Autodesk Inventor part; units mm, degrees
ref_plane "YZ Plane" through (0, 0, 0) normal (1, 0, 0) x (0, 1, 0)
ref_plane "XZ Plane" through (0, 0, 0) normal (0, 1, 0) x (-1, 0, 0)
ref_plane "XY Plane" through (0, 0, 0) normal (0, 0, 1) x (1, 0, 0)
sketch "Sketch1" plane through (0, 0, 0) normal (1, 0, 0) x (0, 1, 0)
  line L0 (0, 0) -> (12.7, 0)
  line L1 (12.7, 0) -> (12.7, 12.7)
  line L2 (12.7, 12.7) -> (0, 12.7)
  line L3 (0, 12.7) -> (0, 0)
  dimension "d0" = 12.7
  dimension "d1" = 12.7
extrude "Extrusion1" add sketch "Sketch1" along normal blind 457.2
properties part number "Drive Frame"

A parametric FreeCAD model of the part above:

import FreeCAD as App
import Part
import Sketcher
Q = App.Units.Quantity


def add_polygon(sketch, points):
    """Adds a closed chain of lines whose ends are joined by coincident constraints."""
    first, n = sketch.GeometryCount, len(points)
    for a, b in zip(points, points[1:] + points[:1]):
        sketch.addGeometry(Part.LineSegment(App.Vector(*a, 0), App.Vector(*b, 0)), False)
    for i in range(n):
        sketch.addConstraint(Sketcher.Constraint("Coincident", first + i, 2, first + (i + 1) % n, 1))

doc = App.newDocument("Part")
params = doc.addObject("Spreadsheet::Sheet", "Params")
for row, (alias, value) in enumerate([
    ("sketch1_width", "0.5 in"),
    ("pad1_length", "18 in"),
], start=1):
    params.set(f"A{row}", alias)
    params.set(f"B{row}", "=" + value)
    params.setAlias(f"B{row}", alias)

body = doc.addObject("PartDesign::Body", "Body")

sketch1 = body.newObject("Sketcher::SketchObject", "Sketch")
sketch1.AttachmentSupport = (doc.getObject("YZ_Plane"), [""])
sketch1.MapMode = "FlatFace"
add_polygon(sketch1, [(0, 13), (0, 0), (13, 0), (13, 13)])
sketch1.addConstraint([
    Sketcher.Constraint("Vertical", 0),
    Sketcher.Constraint("Horizontal", 1),
    Sketcher.Constraint("Vertical", 2),
    Sketcher.Constraint("Horizontal", 3),
    Sketcher.Constraint("Coincident", 0, 2, -1, 1),
    Sketcher.Constraint("Equal", 3, 0),
    Sketcher.Constraint("DistanceX", 1, 1, 1, 2, Q("0.5 in")),
])
sketch1.setExpression("Constraints[10]", "Params.sketch1_width")
pad1 = body.newObject("PartDesign::Pad", "Pad")
pad1.Profile = sketch1
pad1.setExpression("Length", "Params.pad1_length")

doc.recompute()
